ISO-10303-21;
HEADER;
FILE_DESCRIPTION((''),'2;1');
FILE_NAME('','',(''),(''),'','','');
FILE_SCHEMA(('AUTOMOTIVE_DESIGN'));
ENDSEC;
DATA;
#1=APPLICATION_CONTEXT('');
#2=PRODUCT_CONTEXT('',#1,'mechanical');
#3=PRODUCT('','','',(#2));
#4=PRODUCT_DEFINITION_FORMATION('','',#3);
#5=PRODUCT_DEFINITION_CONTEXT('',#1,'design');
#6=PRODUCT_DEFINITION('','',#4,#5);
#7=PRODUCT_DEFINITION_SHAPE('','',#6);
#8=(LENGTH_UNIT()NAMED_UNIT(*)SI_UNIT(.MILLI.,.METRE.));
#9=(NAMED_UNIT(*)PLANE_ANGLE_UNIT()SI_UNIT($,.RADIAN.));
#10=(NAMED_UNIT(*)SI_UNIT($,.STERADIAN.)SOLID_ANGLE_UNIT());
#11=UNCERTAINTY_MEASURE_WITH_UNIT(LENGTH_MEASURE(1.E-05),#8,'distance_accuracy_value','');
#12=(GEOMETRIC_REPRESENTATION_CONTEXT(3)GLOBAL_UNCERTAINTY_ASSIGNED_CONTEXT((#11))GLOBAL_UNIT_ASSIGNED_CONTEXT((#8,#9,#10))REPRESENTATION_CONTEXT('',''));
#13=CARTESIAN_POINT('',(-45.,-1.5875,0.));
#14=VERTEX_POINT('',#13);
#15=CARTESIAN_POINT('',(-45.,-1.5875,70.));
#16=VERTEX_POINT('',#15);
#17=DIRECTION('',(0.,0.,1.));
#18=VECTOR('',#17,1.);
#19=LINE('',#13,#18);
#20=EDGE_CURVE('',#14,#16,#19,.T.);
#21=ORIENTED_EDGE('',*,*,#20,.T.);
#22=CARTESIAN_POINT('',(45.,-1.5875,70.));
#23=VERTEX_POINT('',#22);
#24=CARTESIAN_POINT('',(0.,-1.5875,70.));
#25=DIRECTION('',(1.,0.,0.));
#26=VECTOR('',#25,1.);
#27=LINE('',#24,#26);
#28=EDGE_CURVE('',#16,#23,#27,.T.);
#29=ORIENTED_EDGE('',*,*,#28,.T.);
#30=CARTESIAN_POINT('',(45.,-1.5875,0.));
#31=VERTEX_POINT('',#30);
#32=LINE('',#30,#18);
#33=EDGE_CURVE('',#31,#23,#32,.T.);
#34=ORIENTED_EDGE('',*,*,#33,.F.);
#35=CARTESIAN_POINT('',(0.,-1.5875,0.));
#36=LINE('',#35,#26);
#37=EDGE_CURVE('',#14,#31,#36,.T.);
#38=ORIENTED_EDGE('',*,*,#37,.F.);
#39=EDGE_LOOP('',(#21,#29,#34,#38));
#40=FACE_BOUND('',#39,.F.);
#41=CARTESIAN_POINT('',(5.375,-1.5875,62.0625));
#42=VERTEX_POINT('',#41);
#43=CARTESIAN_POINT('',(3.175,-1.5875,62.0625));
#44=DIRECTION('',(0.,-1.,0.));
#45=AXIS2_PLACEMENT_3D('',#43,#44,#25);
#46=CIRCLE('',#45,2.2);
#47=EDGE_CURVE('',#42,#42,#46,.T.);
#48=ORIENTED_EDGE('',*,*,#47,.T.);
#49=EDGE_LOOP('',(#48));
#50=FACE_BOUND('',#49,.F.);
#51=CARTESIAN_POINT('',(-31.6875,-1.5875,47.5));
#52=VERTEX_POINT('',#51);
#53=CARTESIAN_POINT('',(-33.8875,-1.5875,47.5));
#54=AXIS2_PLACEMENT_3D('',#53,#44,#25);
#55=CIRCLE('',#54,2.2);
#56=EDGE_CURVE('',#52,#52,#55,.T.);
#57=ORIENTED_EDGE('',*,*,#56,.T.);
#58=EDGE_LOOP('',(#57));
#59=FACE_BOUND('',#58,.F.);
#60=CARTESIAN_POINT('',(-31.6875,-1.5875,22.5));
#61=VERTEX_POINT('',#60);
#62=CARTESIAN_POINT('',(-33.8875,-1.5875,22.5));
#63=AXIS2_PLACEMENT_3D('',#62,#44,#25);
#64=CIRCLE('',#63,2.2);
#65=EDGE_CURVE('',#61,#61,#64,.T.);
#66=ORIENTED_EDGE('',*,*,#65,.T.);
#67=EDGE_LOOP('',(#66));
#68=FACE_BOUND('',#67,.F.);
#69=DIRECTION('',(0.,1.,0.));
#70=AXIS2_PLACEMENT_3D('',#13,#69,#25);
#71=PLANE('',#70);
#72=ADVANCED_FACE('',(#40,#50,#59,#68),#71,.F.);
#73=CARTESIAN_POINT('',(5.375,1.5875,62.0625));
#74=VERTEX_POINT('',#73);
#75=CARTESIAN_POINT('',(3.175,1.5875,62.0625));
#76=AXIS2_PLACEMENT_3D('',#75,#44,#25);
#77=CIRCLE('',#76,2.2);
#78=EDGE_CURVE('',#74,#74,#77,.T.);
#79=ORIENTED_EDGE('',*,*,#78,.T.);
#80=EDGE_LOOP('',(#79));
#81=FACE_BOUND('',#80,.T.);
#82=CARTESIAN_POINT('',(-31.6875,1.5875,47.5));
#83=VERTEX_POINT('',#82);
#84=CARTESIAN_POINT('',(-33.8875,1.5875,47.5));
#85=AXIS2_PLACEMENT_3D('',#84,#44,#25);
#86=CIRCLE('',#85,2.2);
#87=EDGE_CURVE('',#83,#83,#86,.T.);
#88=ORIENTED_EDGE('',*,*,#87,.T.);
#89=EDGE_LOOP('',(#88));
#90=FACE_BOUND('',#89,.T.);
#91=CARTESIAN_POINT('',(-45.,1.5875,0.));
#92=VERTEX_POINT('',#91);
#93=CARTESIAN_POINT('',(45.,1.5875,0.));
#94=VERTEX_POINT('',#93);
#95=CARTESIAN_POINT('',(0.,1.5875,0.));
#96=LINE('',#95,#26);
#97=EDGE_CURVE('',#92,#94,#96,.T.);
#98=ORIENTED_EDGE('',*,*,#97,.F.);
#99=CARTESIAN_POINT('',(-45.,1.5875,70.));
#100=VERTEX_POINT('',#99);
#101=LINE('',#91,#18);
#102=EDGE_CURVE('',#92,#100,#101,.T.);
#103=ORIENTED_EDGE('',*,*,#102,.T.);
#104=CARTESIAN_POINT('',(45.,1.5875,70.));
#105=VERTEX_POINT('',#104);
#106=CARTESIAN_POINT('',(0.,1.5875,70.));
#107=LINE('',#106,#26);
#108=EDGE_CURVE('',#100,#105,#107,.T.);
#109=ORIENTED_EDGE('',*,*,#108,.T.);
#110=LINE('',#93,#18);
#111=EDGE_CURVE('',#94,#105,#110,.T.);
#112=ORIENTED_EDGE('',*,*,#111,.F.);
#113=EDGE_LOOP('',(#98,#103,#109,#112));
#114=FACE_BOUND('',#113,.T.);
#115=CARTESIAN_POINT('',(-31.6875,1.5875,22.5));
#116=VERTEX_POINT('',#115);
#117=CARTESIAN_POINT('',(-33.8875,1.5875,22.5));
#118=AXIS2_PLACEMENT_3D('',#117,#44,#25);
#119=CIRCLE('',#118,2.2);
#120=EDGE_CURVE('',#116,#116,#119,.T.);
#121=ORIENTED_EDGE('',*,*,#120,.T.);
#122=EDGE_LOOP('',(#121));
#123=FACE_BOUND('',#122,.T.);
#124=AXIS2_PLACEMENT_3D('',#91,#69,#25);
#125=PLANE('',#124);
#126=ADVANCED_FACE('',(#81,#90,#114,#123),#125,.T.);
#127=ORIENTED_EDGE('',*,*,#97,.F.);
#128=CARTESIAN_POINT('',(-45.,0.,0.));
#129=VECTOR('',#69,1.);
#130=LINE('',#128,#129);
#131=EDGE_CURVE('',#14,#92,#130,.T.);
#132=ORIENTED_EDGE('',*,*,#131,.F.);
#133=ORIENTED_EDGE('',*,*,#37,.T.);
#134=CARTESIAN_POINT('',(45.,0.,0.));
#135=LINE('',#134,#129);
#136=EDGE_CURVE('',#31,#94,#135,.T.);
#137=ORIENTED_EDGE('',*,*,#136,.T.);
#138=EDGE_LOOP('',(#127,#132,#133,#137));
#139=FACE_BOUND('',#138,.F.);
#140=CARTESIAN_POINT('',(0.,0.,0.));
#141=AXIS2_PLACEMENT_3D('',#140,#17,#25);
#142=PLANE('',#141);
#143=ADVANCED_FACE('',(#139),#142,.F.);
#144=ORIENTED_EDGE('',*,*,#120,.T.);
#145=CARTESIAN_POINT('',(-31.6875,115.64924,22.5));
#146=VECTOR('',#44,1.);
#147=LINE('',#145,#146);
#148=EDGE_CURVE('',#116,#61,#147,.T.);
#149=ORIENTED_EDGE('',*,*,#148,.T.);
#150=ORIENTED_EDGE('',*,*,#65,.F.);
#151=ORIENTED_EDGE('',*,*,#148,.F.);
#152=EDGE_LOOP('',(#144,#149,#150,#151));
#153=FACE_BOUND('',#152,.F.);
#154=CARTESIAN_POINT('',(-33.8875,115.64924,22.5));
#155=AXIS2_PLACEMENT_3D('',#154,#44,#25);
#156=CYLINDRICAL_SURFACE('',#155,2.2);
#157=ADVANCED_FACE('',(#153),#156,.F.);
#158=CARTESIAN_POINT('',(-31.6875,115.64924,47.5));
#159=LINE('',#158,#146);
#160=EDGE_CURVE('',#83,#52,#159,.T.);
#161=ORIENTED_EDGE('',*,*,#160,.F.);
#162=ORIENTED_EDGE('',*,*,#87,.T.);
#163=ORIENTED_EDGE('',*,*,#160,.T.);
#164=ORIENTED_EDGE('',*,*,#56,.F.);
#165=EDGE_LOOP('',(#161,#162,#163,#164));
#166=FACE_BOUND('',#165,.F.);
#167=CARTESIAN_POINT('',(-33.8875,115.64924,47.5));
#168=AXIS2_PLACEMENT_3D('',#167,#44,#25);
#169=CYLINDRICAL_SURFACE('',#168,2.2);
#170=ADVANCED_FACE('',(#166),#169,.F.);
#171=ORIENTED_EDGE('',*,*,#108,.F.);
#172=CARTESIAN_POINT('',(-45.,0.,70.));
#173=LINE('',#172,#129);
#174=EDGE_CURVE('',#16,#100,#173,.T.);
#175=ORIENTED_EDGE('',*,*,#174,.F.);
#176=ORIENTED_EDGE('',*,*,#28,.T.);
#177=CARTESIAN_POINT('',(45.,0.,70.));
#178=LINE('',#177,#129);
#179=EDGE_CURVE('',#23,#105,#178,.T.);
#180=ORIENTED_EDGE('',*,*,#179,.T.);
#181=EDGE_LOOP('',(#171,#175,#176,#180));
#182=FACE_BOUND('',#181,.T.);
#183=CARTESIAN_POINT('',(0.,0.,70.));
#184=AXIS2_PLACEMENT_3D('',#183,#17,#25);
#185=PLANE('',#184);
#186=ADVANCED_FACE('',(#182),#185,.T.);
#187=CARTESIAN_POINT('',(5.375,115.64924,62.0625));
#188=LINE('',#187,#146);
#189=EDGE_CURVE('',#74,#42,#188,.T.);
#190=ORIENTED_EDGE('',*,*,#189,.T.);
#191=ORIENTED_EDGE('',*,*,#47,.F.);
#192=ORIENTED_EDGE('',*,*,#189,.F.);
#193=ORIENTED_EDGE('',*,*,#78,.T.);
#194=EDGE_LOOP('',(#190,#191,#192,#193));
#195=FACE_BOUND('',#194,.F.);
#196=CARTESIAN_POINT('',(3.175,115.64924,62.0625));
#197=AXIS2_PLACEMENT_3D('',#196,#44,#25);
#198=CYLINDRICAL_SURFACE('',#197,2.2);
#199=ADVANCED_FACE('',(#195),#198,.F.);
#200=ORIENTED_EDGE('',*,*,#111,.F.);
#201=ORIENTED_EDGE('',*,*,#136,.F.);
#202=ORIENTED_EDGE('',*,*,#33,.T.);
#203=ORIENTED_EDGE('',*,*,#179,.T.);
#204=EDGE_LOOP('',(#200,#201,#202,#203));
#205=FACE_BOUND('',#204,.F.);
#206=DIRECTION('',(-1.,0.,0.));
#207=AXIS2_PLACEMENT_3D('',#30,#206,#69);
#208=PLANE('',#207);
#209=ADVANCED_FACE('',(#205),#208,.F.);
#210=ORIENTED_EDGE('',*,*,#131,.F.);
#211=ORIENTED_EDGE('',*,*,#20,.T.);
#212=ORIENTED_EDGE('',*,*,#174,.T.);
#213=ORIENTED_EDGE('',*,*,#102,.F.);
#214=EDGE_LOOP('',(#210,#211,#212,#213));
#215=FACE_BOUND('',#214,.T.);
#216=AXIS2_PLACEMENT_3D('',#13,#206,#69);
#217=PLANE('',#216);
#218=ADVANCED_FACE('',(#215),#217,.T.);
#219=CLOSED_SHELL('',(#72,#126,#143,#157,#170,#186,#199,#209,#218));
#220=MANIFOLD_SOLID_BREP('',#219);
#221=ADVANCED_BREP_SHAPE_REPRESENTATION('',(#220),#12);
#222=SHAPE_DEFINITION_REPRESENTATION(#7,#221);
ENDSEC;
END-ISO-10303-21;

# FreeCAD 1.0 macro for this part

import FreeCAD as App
import Part
import Sketcher

V = App.Vector


def add_polygon(sketch, points):
    """Adds a closed chain of lines whose ends are joined by coincident constraints."""
    first, n = sketch.GeometryCount, len(points)
    for a, b in zip(points, points[1:] + points[:1]):
        sketch.addGeometry(Part.LineSegment(App.Vector(*a, 0), App.Vector(*b, 0)), False)
    for i in range(n):
        sketch.addConstraint(Sketcher.Constraint("Coincident", first + i, 2, first + (i + 1) % n, 1))

doc = App.newDocument("Part")
body = doc.addObject("PartDesign::Body", "Body")

sketch1 = body.newObject("Sketcher::SketchObject", "Sketch")
sketch1.AttachmentSupport = (doc.getObject("XY_Plane"), [""])
sketch1.MapMode = "FlatFace"
add_polygon(sketch1, [(-45, 1.6), (-45, -1.6), (45, -1.6), (45, 1.6)])
sketch1.addConstraint(Sketcher.Constraint("Vertical", 0))
sketch1.addConstraint(Sketcher.Constraint("Horizontal", 1))
sketch1.addConstraint(Sketcher.Constraint("Vertical", 2))
sketch1.addConstraint(Sketcher.Constraint("Horizontal", 3))
sketch1.addConstraint(Sketcher.Constraint("Symmetric", 0, 2, 2, 2, -1, 1))
sketch1.addConstraint(Sketcher.Constraint("DistanceX", 1, 1, 1, 2, 90.0))
sketch1.addConstraint(Sketcher.Constraint("DistanceY", 0, 2, 0, 1, 3.175))
pad1 = body.newObject("PartDesign::Pad", "Pad")
pad1.Profile = sketch1
pad1.Length = 70

sketch2 = body.newObject("Sketcher::SketchObject", "Sketch001")
sketch2.AttachmentSupport = (doc.getObject("XZ_Plane"), [""])
sketch2.MapMode = "FlatFace"
sketch2.AttachmentOffset = App.Placement(V(0, 0, -1.5875), App.Rotation())
sketch2.addGeometry(Part.Circle(V(-33.9, 22.5, 0), V(0, 0, 1), 2.2), False)
sketch2.addGeometry(Part.Circle(V(-33.9, 47.5, 0), V(0, 0, 1), 2.2), False)
sketch2.addGeometry(Part.Circle(V(3.2, 62.1, 0), V(0, 0, 1), 2.2), False)
sketch2.addConstraint(Sketcher.Constraint("Equal", 0, 1))
sketch2.addConstraint(Sketcher.Constraint("Equal", 1, 2))
sketch2.addConstraint(Sketcher.Constraint("Vertical", 0, 3, 1, 3))
sketch2.addConstraint(Sketcher.Constraint("Diameter", 0, 4.4))
sketch2.addConstraint(Sketcher.Constraint("DistanceY", 0, 3, 1, 3, 25.0))
sketch2.addConstraint(Sketcher.Constraint("DistanceY", -1, 1, 0, 3, 22.5))
sketch2.addConstraint(Sketcher.Constraint("DistanceX", -1, 1, 2, 3, 3.175))
sketch2.addConstraint(Sketcher.Constraint("DistanceX", 0, 3, -1, 1, 33.8875))
sketch2.addConstraint(Sketcher.Constraint("DistanceY", -1, 1, 2, 3, 62.0625))
doc.recompute()
hole = body.newObject("PartDesign::Hole", "Hole")
hole.Profile = sketch2
hole.ThreadType = "None"
hole.Diameter = 4.4
hole.DepthType = "ThroughAll"
hole.Reversed = True

doc.recompute()
